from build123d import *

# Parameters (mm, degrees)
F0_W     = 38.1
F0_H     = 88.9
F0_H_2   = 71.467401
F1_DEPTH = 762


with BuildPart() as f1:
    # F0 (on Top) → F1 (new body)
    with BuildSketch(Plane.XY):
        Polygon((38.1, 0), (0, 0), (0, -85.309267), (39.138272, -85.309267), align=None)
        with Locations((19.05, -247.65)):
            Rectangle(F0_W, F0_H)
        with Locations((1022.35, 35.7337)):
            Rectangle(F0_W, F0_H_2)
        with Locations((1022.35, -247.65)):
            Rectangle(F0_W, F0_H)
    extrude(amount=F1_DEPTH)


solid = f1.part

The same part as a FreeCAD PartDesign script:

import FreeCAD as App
import Part
import Sketcher
Q = App.Units.Quantity

doc = App.newDocument("Part")
body = doc.addObject("PartDesign::Body", "Body")
body.AllowCompound = True

sketch1 = body.newObject("Sketcher::SketchObject", "Sketch")
sketch1.AttachmentSupport = (doc.getObject("XY_Plane"), [""])
sketch1.MapMode = "FlatFace"
sketch1.addGeometry([
    Part.LineSegment(App.Vector(38.1, 0, 0), App.Vector(0, 0, 0)),
    Part.LineSegment(App.Vector(0, 0, 0), App.Vector(0, -85.309267, 0)),
    Part.LineSegment(App.Vector(0, -85.309267, 0), App.Vector(39.138272, -85.309267, 0)),
    Part.LineSegment(App.Vector(39.138272, -85.309267, 0), App.Vector(38.1, 0, 0)),
    Part.LineSegment(App.Vector(0, -203.2, 0), App.Vector(0, -292.1, 0)),
    Part.LineSegment(App.Vector(0, -292.1, 0), App.Vector(38.1, -292.1, 0)),
    Part.LineSegment(App.Vector(38.1, -292.1, 0), App.Vector(38.1, -203.2, 0)),
    Part.LineSegment(App.Vector(38.1, -203.2, 0), App.Vector(0, -203.2, 0)),
    Part.LineSegment(App.Vector(1003.3, 71.4674, 0), App.Vector(1003.3, 0, 0)),
    Part.LineSegment(App.Vector(1003.3, 0, 0), App.Vector(1041.4, 0, 0)),
    Part.LineSegment(App.Vector(1041.4, 0, 0), App.Vector(1041.4, 71.4674, 0)),
    Part.LineSegment(App.Vector(1041.4, 71.4674, 0), App.Vector(1003.3, 71.4674, 0)),
    Part.LineSegment(App.Vector(1003.3, -203.2, 0), App.Vector(1003.3, -292.1, 0)),
    Part.LineSegment(App.Vector(1003.3, -292.1, 0), App.Vector(1041.4, -292.1, 0)),
    Part.LineSegment(App.Vector(1041.4, -292.1, 0), App.Vector(1041.4, -203.2, 0)),
    Part.LineSegment(App.Vector(1041.4, -203.2, 0), App.Vector(1003.3, -203.2, 0)),
], False)
sketch1.addConstraint([
    Sketcher.Constraint("Coincident", 0, 2, 1, 1),
    Sketcher.Constraint("Coincident", 1, 2, 2, 1),
    Sketcher.Constraint("Coincident", 2, 2, 3, 1),
    Sketcher.Constraint("Coincident", 3, 2, 0, 1),
    Sketcher.Constraint("Coincident", 4, 2, 5, 1),
    Sketcher.Constraint("Coincident", 5, 2, 6, 1),
    Sketcher.Constraint("Coincident", 6, 2, 7, 1),
    Sketcher.Constraint("Coincident", 7, 2, 4, 1),
    Sketcher.Constraint("Coincident", 8, 2, 9, 1),
    Sketcher.Constraint("Coincident", 9, 2, 10, 1),
    Sketcher.Constraint("Coincident", 10, 2, 11, 1),
    Sketcher.Constraint("Coincident", 11, 2, 8, 1),
    Sketcher.Constraint("Coincident", 12, 2, 13, 1),
    Sketcher.Constraint("Coincident", 13, 2, 14, 1),
    Sketcher.Constraint("Coincident", 14, 2, 15, 1),
    Sketcher.Constraint("Coincident", 15, 2, 12, 1),
    Sketcher.Constraint("Horizontal", 0),
    Sketcher.Constraint("Vertical", 1),
    Sketcher.Constraint("Horizontal", 2),
    Sketcher.Constraint("Vertical", 4),
    Sketcher.Constraint("Horizontal", 5),
    Sketcher.Constraint("Vertical", 6),
    Sketcher.Constraint("Horizontal", 7),
    Sketcher.Constraint("Vertical", 8),
    Sketcher.Constraint("Horizontal", 9),
    Sketcher.Constraint("Vertical", 10),
    Sketcher.Constraint("Horizontal", 11),
    Sketcher.Constraint("Vertical", 12),
    Sketcher.Constraint("Horizontal", 13),
    Sketcher.Constraint("Vertical", 14),
    Sketcher.Constraint("Horizontal", 15),
    Sketcher.Constraint("Coincident", 0, 2, -1, 1),
    Sketcher.Constraint("PointOnObject", 4, 2, -2),
    Sketcher.Constraint("PointOnObject", 8, 2, -1),
    Sketcher.Constraint("Horizontal", 5, 2, 12, 2),
    Sketcher.Constraint("Horizontal", 7, 2, 14, 2),
    Sketcher.Constraint("Vertical", 3, 2, 5, 2),
    Sketcher.Constraint("Vertical", 11, 2, 12, 2),
    Sketcher.Constraint("Vertical", 10, 2, 13, 2),
    Sketcher.Constraint("Equal", 7, 9),
    Sketcher.Constraint("DistanceX", 0, 2, 0, 1, Q("1.5 in")),
    Sketcher.Constraint("DistanceY", 4, 2, 4, 1, Q("3.5 in")),
    Sketcher.Constraint("DistanceY", 6, 2, -1, 1, Q("8 in")),
    Sketcher.Constraint("DistanceX", -1, 1, 9, 2, Q("41 in")),
    Sketcher.Constraint("DistanceY", 8, 2, 8, 1, 71.467401),
    Sketcher.Constraint("DistanceX", 2, 1, 2, 2, 39.138272),
    Sketcher.Constraint("DistanceY", 1, 2, 1, 1, 85.309267),
])
pad1 = body.newObject("PartDesign::Pad", "Pad")
pad1.Profile = sketch1
pad1.Length = Q("30 in")

doc.recompute()
